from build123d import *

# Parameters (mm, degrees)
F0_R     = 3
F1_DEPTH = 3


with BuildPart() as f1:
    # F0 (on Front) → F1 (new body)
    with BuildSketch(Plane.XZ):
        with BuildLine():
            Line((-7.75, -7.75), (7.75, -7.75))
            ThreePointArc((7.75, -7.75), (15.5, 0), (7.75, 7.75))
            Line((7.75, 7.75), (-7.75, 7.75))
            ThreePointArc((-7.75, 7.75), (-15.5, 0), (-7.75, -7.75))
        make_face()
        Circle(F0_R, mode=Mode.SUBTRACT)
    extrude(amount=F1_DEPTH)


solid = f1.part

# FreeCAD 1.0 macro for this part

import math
import FreeCAD as App
import Part
import Sketcher
Q = App.Units.Quantity

doc = App.newDocument("Part")
body = doc.addObject("PartDesign::Body", "Body")

# Sketch on XZ plane
sketch1 = body.newObject("Sketcher::SketchObject", "Sketch")
sketch1.AttachmentSupport = (doc.getObject("XZ_Plane"), [""])
sketch1.MapMode = "FlatFace"
sketch1.addGeometry([
    Part.LineSegment(App.Vector(-7.8, -7.8, 0), App.Vector(7.8, -7.8, 0)),  # 0
    Part.ArcOfCircle(Part.Circle(App.Vector(7.8, 0, 0), App.Vector(0, 0, 1), 7.8), math.radians(-90), math.radians(90)),  # 1
    Part.LineSegment(App.Vector(7.8, 7.8, 0), App.Vector(-7.8, 7.8, 0)),  # 2
    Part.ArcOfCircle(Part.Circle(App.Vector(-7.8, 0, 0), App.Vector(0, 0, 1), 7.8), math.radians(90), math.radians(270)),  # 3
    Part.Circle(App.Vector(0, 0, 0), App.Vector(0, 0, 1), 3),  # 4
], False)
sketch1.addConstraint([
    Sketcher.Constraint("Tangent", 0, 2, 1, 1),
    Sketcher.Constraint("Tangent", 1, 2, 2, 1),
    Sketcher.Constraint("Tangent", 2, 2, 3, 1),
    Sketcher.Constraint("Tangent", 3, 2, 0, 1),
    Sketcher.Constraint("Horizontal", 0),
    Sketcher.Constraint("Horizontal", 2),
    Sketcher.Constraint("Coincident", 4, 3, -1, 1),
    Sketcher.Constraint("Symmetric", 1, 3, 3, 3, -1, 1),
    Sketcher.Constraint("Diameter", 4, Q("6 mm")),
    Sketcher.Constraint("Radius", 1, Q("7.75 mm")),
    Sketcher.Constraint("DistanceX", 0, 1, 0, 2, Q("15.5 mm")),
])
pad1 = body.newObject("PartDesign::Pad", "Pad")
pad1.Profile = sketch1
pad1.Length = 3

doc.recompute()
